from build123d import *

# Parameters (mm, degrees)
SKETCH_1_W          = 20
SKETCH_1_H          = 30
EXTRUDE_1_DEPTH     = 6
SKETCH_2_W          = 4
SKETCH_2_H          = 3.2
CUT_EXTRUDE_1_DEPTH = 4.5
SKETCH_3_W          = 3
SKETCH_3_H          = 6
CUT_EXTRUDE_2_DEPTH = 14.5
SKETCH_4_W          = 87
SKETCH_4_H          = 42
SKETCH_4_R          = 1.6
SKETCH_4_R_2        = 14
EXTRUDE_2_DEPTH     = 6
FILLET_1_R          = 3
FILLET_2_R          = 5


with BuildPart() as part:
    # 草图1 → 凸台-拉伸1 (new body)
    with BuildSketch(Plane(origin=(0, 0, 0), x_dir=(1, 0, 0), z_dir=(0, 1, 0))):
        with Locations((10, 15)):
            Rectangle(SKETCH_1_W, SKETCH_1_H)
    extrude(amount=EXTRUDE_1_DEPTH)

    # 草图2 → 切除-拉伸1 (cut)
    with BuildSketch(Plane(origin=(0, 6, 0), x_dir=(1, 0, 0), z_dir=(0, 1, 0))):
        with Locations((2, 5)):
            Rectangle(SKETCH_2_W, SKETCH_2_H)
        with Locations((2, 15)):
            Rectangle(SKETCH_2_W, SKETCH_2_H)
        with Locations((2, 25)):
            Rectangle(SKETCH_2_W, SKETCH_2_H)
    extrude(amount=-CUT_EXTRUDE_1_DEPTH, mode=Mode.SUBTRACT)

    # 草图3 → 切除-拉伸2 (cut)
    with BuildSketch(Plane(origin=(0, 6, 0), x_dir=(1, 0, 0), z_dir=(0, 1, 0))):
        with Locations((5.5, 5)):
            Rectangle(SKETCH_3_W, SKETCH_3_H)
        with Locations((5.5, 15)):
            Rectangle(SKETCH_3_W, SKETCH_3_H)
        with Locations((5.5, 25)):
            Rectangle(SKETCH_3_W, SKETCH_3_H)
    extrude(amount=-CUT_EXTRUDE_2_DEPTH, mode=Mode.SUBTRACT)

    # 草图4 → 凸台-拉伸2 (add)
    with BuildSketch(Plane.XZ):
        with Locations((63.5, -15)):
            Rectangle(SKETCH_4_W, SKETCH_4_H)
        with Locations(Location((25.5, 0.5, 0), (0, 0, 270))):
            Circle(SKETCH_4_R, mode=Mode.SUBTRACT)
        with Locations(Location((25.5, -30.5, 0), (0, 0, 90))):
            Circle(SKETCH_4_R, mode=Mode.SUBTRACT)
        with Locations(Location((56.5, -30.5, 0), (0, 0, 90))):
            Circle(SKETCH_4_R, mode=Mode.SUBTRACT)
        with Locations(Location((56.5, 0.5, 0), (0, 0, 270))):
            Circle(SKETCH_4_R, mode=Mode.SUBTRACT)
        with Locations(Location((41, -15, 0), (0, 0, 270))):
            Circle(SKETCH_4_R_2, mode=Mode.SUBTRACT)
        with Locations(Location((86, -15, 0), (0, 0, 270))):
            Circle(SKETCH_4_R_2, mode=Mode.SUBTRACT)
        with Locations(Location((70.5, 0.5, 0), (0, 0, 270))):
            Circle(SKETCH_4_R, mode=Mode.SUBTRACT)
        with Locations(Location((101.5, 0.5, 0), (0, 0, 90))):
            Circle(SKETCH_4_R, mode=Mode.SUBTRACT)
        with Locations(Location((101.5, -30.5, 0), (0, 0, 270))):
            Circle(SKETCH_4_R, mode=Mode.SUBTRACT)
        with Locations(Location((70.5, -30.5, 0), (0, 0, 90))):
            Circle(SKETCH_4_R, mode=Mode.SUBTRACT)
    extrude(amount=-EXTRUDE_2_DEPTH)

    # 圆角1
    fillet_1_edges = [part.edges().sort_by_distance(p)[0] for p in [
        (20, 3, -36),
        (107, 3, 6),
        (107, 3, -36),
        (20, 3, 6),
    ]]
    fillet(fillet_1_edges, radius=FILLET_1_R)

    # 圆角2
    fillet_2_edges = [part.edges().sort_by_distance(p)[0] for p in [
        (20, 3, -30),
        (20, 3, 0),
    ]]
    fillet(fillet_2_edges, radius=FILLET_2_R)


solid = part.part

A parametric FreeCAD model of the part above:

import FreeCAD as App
import Part
import Sketcher

V = App.Vector
Q = App.Units.Quantity


def edges_at(feature, points):
    """Names of the edges that pass closest to the given points."""
    edges = feature.Shape.Edges
    near = lambda p: min(range(len(edges)), key=lambda i: edges[i].distToShape(Part.Vertex(*p))[0])
    return sorted({f"Edge{near(p) + 1}" for p in points})

doc = App.newDocument("Part")
params = doc.addObject("Spreadsheet::Sheet", "Params")
for row, (alias, value) in enumerate([
    ("sketch1_width", "20 mm"),
    ("sketch1_height", "30 mm"),
    ("pad1_length", "6 mm"),
    ("sketch2_width", "4 mm"),
    ("sketch2_height", "3.2 mm"),
    ("pocket1_length", "4.5 mm"),
    ("sketch3_width", "3 mm"),
    ("sketch3_height", "6 mm"),
    ("pocket2_length", "14.5 mm"),
    ("sketch4_diameter", "28 mm"),
    ("sketch4_diameter2", "3.2 mm"),
    ("sketch4_width", "87 mm"),
    ("sketch4_height", "42 mm"),
    ("pad2_length", "6 mm"),
    ("fillet_radius", "3 mm"),
    ("fillet2_radius", "5 mm"),
], start=1):
    params.set(f"A{row}", alias)
    params.set(f"B{row}", "=" + value)
    params.setAlias(f"B{row}", alias)

body = doc.addObject("PartDesign::Body", "Body")

# Sketch on XZ plane
sketch1 = body.newObject("Sketcher::SketchObject", "Sketch")
sketch1.AttachmentSupport = (doc.getObject("XZ_Plane"), [""])
sketch1.MapMode = "FlatFace"
sketch1.addGeometry([
    Part.LineSegment(V(0, -30, 0), V(0, 0, 0)),
    Part.LineSegment(V(0, 0, 0), V(20, 0, 0)),
    Part.LineSegment(V(20, 0, 0), V(20, -30, 0)),
    Part.LineSegment(V(20, -30, 0), V(0, -30, 0)),
], False)
sketch1.addConstraint([
    Sketcher.Constraint("Coincident", 0, 2, 1, 1),
    Sketcher.Constraint("Coincident", 1, 2, 2, 1),
    Sketcher.Constraint("Coincident", 2, 2, 3, 1),
    Sketcher.Constraint("Coincident", 3, 2, 0, 1),
    Sketcher.Constraint("Vertical", 0),
    Sketcher.Constraint("Horizontal", 1),
    Sketcher.Constraint("Vertical", 2),
    Sketcher.Constraint("Horizontal", 3),
    Sketcher.Constraint("Coincident", 0, 2, -1, 1),
    Sketcher.Constraint("DistanceX", 1, 1, 1, 2, Q("20 mm")),
    Sketcher.Constraint("DistanceY", 0, 1, 0, 2, Q("30 mm")),
])
sketch1.setExpression("Constraints[9]", "Params.sketch1_width")
sketch1.setExpression("Constraints[10]", "Params.sketch1_height")
pad1 = body.newObject("PartDesign::Pad", "Pad")
pad1.Profile = sketch1
pad1.setExpression("Length", "Params.pad1_length")
pad1.Reversed = True

# Sketch on XZ plane
sketch2 = body.newObject("Sketcher::SketchObject", "Sketch001")
sketch2.AttachmentSupport = (doc.getObject("XZ_Plane"), [""])
sketch2.MapMode = "FlatFace"
sketch2.AttachmentOffset = App.Placement(V(0, 0, -6), App.Rotation())
sketch2.addGeometry([
    Part.LineSegment(V(0, -6.6, 0), V(0, -3.4, 0)),  # 0
    Part.LineSegment(V(0, -3.4, 0), V(4, -3.4, 0)),  # 1
    Part.LineSegment(V(4, -3.4, 0), V(4, -6.6, 0)),  # 2
    Part.LineSegment(V(4, -6.6, 0), V(0, -6.6, 0)),  # 3
    Part.LineSegment(V(0, -16.6, 0), V(0, -13.4, 0)),  # 4
    Part.LineSegment(V(0, -13.4, 0), V(4, -13.4, 0)),  # 5
    Part.LineSegment(V(4, -13.4, 0), V(4, -16.6, 0)),  # 6
    Part.LineSegment(V(4, -16.6, 0), V(0, -16.6, 0)),  # 7
    Part.LineSegment(V(0, -26.6, 0), V(0, -23.4, 0)),  # 8
    Part.LineSegment(V(0, -23.4, 0), V(4, -23.4, 0)),  # 9
    Part.LineSegment(V(4, -23.4, 0), V(4, -26.6, 0)),  # 10
    Part.LineSegment(V(4, -26.6, 0), V(0, -26.6, 0)),  # 11
], False)
sketch2.addConstraint([
    Sketcher.Constraint("Coincident", 0, 2, 1, 1),
    Sketcher.Constraint("Coincident", 1, 2, 2, 1),
    Sketcher.Constraint("Coincident", 2, 2, 3, 1),
    Sketcher.Constraint("Coincident", 3, 2, 0, 1),
    Sketcher.Constraint("Coincident", 4, 2, 5, 1),
    Sketcher.Constraint("Coincident", 5, 2, 6, 1),
    Sketcher.Constraint("Coincident", 6, 2, 7, 1),
    Sketcher.Constraint("Coincident", 7, 2, 4, 1),
    Sketcher.Constraint("Coincident", 8, 2, 9, 1),
    Sketcher.Constraint("Coincident", 9, 2, 10, 1),
    Sketcher.Constraint("Coincident", 10, 2, 11, 1),
    Sketcher.Constraint("Coincident", 11, 2, 8, 1),
    Sketcher.Constraint("Vertical", 0),
    Sketcher.Constraint("Horizontal", 1),
    Sketcher.Constraint("Vertical", 2),
    Sketcher.Constraint("Horizontal", 3),
    Sketcher.Constraint("Vertical", 4),
    Sketcher.Constraint("Horizontal", 5),
    Sketcher.Constraint("Vertical", 6),
    Sketcher.Constraint("Horizontal", 7),
    Sketcher.Constraint("Vertical", 8),
    Sketcher.Constraint("Horizontal", 9),
    Sketcher.Constraint("Vertical", 10),
    Sketcher.Constraint("Horizontal", 11),
    Sketcher.Constraint("PointOnObject", 0, 2, -2),
    Sketcher.Constraint("PointOnObject", 4, 2, -2),
    Sketcher.Constraint("PointOnObject", 8, 2, -2),
    Sketcher.Constraint("Vertical", 2, 2, 5, 2),
    Sketcher.Constraint("Vertical", 6, 2, 9, 2),
    Sketcher.Constraint("Equal", 2, 4),
    Sketcher.Constraint("Equal", 6, 8),
    Sketcher.Constraint("DistanceX", 1, 1, 1, 2, Q("4 mm")),
    Sketcher.Constraint("DistanceY", 0, 1, 0, 2, Q("3.2 mm")),
    Sketcher.Constraint("DistanceY", 4, 2, 0, 2, Q("10 mm")),
    Sketcher.Constraint("DistanceY", 8, 2, 4, 2, Q("10 mm")),
    Sketcher.Constraint("DistanceY", 0, 2, -1, 1, Q("3.4 mm")),
])
sketch2.setExpression("Constraints[31]", "Params.sketch2_width")
sketch2.setExpression("Constraints[32]", "Params.sketch2_height")
pocket1 = body.newObject("PartDesign::Pocket", "Pocket")
pocket1.Profile = sketch2
pocket1.setExpression("Length", "Params.pocket1_length")
pocket1.Reversed = True

# Sketch on XZ plane
sketch3 = body.newObject("Sketcher::SketchObject", "Sketch002")
sketch3.AttachmentSupport = (doc.getObject("XZ_Plane"), [""])
sketch3.MapMode = "FlatFace"
sketch3.AttachmentOffset = App.Placement(V(0, 0, -6), App.Rotation())
sketch3.addGeometry([
    Part.LineSegment(V(4, -8, 0), V(4, -2, 0)),  # 0
    Part.LineSegment(V(4, -2, 0), V(7, -2, 0)),  # 1
    Part.LineSegment(V(7, -2, 0), V(7, -8, 0)),  # 2
    Part.LineSegment(V(7, -8, 0), V(4, -8, 0)),  # 3
    Part.LineSegment(V(4, -18, 0), V(4, -12, 0)),  # 4
    Part.LineSegment(V(4, -12, 0), V(7, -12, 0)),  # 5
    Part.LineSegment(V(7, -12, 0), V(7, -18, 0)),  # 6
    Part.LineSegment(V(7, -18, 0), V(4, -18, 0)),  # 7
    Part.LineSegment(V(4, -28, 0), V(4, -22, 0)),  # 8
    Part.LineSegment(V(4, -22, 0), V(7, -22, 0)),  # 9
    Part.LineSegment(V(7, -22, 0), V(7, -28, 0)),  # 10
    Part.LineSegment(V(7, -28, 0), V(4, -28, 0)),  # 11
], False)
sketch3.addConstraint([
    Sketcher.Constraint("Coincident", 0, 2, 1, 1),
    Sketcher.Constraint("Coincident", 1, 2, 2, 1),
    Sketcher.Constraint("Coincident", 2, 2, 3, 1),
    Sketcher.Constraint("Coincident", 3, 2, 0, 1),
    Sketcher.Constraint("Coincident", 4, 2, 5, 1),
    Sketcher.Constraint("Coincident", 5, 2, 6, 1),
    Sketcher.Constraint("Coincident", 6, 2, 7, 1),
    Sketcher.Constraint("Coincident", 7, 2, 4, 1),
    Sketcher.Constraint("Coincident", 8, 2, 9, 1),
    Sketcher.Constraint("Coincident", 9, 2, 10, 1),
    Sketcher.Constraint("Coincident", 10, 2, 11, 1),
    Sketcher.Constraint("Coincident", 11, 2, 8, 1),
    Sketcher.Constraint("Vertical", 0),
    Sketcher.Constraint("Horizontal", 1),
    Sketcher.Constraint("Vertical", 2),
    Sketcher.Constraint("Horizontal", 3),
    Sketcher.Constraint("Vertical", 4),
    Sketcher.Constraint("Horizontal", 5),
    Sketcher.Constraint("Vertical", 6),
    Sketcher.Constraint("Horizontal", 7),
    Sketcher.Constraint("Vertical", 8),
    Sketcher.Constraint("Horizontal", 9),
    Sketcher.Constraint("Vertical", 10),
    Sketcher.Constraint("Horizontal", 11),
    Sketcher.Constraint("Vertical", 3, 2, 4, 2),
    Sketcher.Constraint("Vertical", 2, 2, 5, 2),
    Sketcher.Constraint("Vertical", 7, 2, 8, 2),
    Sketcher.Constraint("Vertical", 6, 2, 9, 2),
    Sketcher.Constraint("Equal", 2, 4),
    Sketcher.Constraint("Equal", 6, 8),
    Sketcher.Constraint("DistanceX", 1, 1, 1, 2, Q("3 mm")),
    Sketcher.Constraint("DistanceY", 0, 1, 0, 2, Q("6 mm")),
    Sketcher.Constraint("DistanceX", -1, 1, 0, 2, Q("4 mm")),
    Sketcher.Constraint("DistanceY", 0, 2, -1, 1, Q("2 mm")),
    Sketcher.Constraint("DistanceY", 4, 2, -1, 1, Q("12 mm")),
    Sketcher.Constraint("DistanceY", 8, 2, -1, 1, Q("22 mm")),
])
sketch3.setExpression("Constraints[30]", "Params.sketch3_width")
sketch3.setExpression("Constraints[31]", "Params.sketch3_height")
pocket2 = body.newObject("PartDesign::Pocket", "Pocket001")
pocket2.Profile = sketch3
pocket2.setExpression("Length", "Params.pocket2_length")
pocket2.Reversed = True

# Sketch on XZ plane
sketch4 = body.newObject("Sketcher::SketchObject", "Sketch003")
sketch4.AttachmentSupport = (doc.getObject("XZ_Plane"), [""])
sketch4.MapMode = "FlatFace"
sketch4.addGeometry([
    Part.LineSegment(V(20, 6, 0), V(20, -36, 0)),  # 0
    Part.LineSegment(V(20, -36, 0), V(107, -36, 0)),  # 1
    Part.LineSegment(V(107, -36, 0), V(107, 6, 0)),  # 2
    Part.LineSegment(V(107, 6, 0), V(20, 6, 0)),  # 3
    Part.Circle(V(25.5, -30.5, 0), V(0, 0, 1), 1.6),  # 4
    Part.Circle(V(56.5, -30.5, 0), V(0, 0, 1), 1.6),  # 5
    Part.Circle(V(70.5, -30.5, 0), V(0, 0, 1), 1.6),  # 6
    Part.Circle(V(101.5, -30.5, 0), V(0, 0, 1), 1.6),  # 7
    Part.Circle(V(41, -15, 0), V(0, 0, 1), 14),  # 8
    Part.Circle(V(25.5, 0.5, 0), V(0, 0, 1), 1.6),  # 9
    Part.Circle(V(56.5, 0.5, 0), V(0, 0, 1), 1.6),  # 10
    Part.Circle(V(86, -15, 0), V(0, 0, 1), 14),  # 11
    Part.Circle(V(70.5, 0.5, 0), V(0, 0, 1), 1.6),  # 12
    Part.Circle(V(101.5, 0.5, 0), V(0, 0, 1), 1.6),  # 13
], False)
sketch4.addConstraint([
    Sketcher.Constraint("Coincident", 0, 2, 1, 1),
    Sketcher.Constraint("Coincident", 1, 2, 2, 1),
    Sketcher.Constraint("Coincident", 2, 2, 3, 1),
    Sketcher.Constraint("Coincident", 3, 2, 0, 1),
    Sketcher.Constraint("Vertical", 0),
    Sketcher.Constraint("Horizontal", 1),
    Sketcher.Constraint("Vertical", 2),
    Sketcher.Constraint("Horizontal", 3),
    Sketcher.Constraint("Equal", 4, 5),
    Sketcher.Constraint("Equal", 5, 6),
    Sketcher.Constraint("Equal", 6, 7),
    Sketcher.Constraint("Equal", 7, 9),
    Sketcher.Constraint("Equal", 9, 10),
    Sketcher.Constraint("Equal", 8, 11),
    Sketcher.Constraint("Equal", 10, 12),
    Sketcher.Constraint("Equal", 12, 13),
    Sketcher.Constraint("Horizontal", 4, 3, 5, 3),
    Sketcher.Constraint("Horizontal", 5, 3, 6, 3),
    Sketcher.Constraint("Horizontal", 6, 3, 7, 3),
    Sketcher.Constraint("Horizontal", 9, 3, 10, 3),
    Sketcher.Constraint("Horizontal", 8, 3, 11, 3),
    Sketcher.Constraint("Horizontal", 10, 3, 12, 3),
    Sketcher.Constraint("Horizontal", 12, 3, 13, 3),
    Sketcher.Constraint("Vertical", 4, 3, 9, 3),
    Sketcher.Constraint("Vertical", 5, 3, 10, 3),
    Sketcher.Constraint("Vertical", 6, 3, 12, 3),
    Sketcher.Constraint("Vertical", 7, 3, 13, 3),
    Sketcher.Constraint("Diameter", 8, Q("28 mm")),
    Sketcher.Constraint("Diameter", 4, Q("3.2 mm")),
    Sketcher.Constraint("DistanceX", 1, 1, 1, 2, Q("87 mm")),
    Sketcher.Constraint("DistanceY", 0, 2, 0, 1, Q("42 mm")),
    Sketcher.Constraint("DistanceX", -1, 1, 8, 3, Q("41 mm")),
    Sketcher.Constraint("DistanceY", 8, 3, -1, 1, Q("15 mm")),
    Sketcher.Constraint("DistanceX", -1, 1, 11, 3, Q("86 mm")),
    Sketcher.Constraint("DistanceX", -1, 1, 0, 2, Q("20 mm")),
    Sketcher.Constraint("DistanceY", 0, 2, -1, 1, Q("36 mm")),
    Sketcher.Constraint("DistanceX", 4, 3, 5, 3, Q("31 mm")),
    Sketcher.Constraint("DistanceX", 5, 3, 6, 3, Q("14 mm")),
    Sketcher.Constraint("DistanceX", 6, 3, 7, 3, Q("31 mm")),
    Sketcher.Constraint("DistanceY", 4, 3, 9, 3, Q("31 mm")),
    Sketcher.Constraint("DistanceX", -1, 1, 4, 3, Q("25.5 mm")),
    Sketcher.Constraint("DistanceY", 4, 3, -1, 1, Q("30.5 mm")),
])
sketch4.setExpression("Constraints[27]", "Params.sketch4_diameter")
sketch4.setExpression("Constraints[28]", "Params.sketch4_diameter2")
sketch4.setExpression("Constraints[29]", "Params.sketch4_width")
sketch4.setExpression("Constraints[30]", "Params.sketch4_height")
pad2 = body.newObject("PartDesign::Pad", "Pad001")
pad2.Profile = sketch4
pad2.setExpression("Length", "Params.pad2_length")
pad2.Reversed = True
doc.recompute()

fillet = body.newObject("PartDesign::Fillet", "Fillet")
fillet.Base = (pad2, edges_at(pad2, [
    (20, 3, -36),
    (107, 3, 6),
    (107, 3, -36),
    (20, 3, 6),
]))
fillet.setExpression("Radius", "Params.fillet_radius")
doc.recompute()

fillet2 = body.newObject("PartDesign::Fillet", "Fillet001")
fillet2.Base = (fillet, edges_at(fillet, [(20, 3, -30), (20, 3, 0)]))
fillet2.setExpression("Radius", "Params.fillet2_radius")

doc.recompute()
